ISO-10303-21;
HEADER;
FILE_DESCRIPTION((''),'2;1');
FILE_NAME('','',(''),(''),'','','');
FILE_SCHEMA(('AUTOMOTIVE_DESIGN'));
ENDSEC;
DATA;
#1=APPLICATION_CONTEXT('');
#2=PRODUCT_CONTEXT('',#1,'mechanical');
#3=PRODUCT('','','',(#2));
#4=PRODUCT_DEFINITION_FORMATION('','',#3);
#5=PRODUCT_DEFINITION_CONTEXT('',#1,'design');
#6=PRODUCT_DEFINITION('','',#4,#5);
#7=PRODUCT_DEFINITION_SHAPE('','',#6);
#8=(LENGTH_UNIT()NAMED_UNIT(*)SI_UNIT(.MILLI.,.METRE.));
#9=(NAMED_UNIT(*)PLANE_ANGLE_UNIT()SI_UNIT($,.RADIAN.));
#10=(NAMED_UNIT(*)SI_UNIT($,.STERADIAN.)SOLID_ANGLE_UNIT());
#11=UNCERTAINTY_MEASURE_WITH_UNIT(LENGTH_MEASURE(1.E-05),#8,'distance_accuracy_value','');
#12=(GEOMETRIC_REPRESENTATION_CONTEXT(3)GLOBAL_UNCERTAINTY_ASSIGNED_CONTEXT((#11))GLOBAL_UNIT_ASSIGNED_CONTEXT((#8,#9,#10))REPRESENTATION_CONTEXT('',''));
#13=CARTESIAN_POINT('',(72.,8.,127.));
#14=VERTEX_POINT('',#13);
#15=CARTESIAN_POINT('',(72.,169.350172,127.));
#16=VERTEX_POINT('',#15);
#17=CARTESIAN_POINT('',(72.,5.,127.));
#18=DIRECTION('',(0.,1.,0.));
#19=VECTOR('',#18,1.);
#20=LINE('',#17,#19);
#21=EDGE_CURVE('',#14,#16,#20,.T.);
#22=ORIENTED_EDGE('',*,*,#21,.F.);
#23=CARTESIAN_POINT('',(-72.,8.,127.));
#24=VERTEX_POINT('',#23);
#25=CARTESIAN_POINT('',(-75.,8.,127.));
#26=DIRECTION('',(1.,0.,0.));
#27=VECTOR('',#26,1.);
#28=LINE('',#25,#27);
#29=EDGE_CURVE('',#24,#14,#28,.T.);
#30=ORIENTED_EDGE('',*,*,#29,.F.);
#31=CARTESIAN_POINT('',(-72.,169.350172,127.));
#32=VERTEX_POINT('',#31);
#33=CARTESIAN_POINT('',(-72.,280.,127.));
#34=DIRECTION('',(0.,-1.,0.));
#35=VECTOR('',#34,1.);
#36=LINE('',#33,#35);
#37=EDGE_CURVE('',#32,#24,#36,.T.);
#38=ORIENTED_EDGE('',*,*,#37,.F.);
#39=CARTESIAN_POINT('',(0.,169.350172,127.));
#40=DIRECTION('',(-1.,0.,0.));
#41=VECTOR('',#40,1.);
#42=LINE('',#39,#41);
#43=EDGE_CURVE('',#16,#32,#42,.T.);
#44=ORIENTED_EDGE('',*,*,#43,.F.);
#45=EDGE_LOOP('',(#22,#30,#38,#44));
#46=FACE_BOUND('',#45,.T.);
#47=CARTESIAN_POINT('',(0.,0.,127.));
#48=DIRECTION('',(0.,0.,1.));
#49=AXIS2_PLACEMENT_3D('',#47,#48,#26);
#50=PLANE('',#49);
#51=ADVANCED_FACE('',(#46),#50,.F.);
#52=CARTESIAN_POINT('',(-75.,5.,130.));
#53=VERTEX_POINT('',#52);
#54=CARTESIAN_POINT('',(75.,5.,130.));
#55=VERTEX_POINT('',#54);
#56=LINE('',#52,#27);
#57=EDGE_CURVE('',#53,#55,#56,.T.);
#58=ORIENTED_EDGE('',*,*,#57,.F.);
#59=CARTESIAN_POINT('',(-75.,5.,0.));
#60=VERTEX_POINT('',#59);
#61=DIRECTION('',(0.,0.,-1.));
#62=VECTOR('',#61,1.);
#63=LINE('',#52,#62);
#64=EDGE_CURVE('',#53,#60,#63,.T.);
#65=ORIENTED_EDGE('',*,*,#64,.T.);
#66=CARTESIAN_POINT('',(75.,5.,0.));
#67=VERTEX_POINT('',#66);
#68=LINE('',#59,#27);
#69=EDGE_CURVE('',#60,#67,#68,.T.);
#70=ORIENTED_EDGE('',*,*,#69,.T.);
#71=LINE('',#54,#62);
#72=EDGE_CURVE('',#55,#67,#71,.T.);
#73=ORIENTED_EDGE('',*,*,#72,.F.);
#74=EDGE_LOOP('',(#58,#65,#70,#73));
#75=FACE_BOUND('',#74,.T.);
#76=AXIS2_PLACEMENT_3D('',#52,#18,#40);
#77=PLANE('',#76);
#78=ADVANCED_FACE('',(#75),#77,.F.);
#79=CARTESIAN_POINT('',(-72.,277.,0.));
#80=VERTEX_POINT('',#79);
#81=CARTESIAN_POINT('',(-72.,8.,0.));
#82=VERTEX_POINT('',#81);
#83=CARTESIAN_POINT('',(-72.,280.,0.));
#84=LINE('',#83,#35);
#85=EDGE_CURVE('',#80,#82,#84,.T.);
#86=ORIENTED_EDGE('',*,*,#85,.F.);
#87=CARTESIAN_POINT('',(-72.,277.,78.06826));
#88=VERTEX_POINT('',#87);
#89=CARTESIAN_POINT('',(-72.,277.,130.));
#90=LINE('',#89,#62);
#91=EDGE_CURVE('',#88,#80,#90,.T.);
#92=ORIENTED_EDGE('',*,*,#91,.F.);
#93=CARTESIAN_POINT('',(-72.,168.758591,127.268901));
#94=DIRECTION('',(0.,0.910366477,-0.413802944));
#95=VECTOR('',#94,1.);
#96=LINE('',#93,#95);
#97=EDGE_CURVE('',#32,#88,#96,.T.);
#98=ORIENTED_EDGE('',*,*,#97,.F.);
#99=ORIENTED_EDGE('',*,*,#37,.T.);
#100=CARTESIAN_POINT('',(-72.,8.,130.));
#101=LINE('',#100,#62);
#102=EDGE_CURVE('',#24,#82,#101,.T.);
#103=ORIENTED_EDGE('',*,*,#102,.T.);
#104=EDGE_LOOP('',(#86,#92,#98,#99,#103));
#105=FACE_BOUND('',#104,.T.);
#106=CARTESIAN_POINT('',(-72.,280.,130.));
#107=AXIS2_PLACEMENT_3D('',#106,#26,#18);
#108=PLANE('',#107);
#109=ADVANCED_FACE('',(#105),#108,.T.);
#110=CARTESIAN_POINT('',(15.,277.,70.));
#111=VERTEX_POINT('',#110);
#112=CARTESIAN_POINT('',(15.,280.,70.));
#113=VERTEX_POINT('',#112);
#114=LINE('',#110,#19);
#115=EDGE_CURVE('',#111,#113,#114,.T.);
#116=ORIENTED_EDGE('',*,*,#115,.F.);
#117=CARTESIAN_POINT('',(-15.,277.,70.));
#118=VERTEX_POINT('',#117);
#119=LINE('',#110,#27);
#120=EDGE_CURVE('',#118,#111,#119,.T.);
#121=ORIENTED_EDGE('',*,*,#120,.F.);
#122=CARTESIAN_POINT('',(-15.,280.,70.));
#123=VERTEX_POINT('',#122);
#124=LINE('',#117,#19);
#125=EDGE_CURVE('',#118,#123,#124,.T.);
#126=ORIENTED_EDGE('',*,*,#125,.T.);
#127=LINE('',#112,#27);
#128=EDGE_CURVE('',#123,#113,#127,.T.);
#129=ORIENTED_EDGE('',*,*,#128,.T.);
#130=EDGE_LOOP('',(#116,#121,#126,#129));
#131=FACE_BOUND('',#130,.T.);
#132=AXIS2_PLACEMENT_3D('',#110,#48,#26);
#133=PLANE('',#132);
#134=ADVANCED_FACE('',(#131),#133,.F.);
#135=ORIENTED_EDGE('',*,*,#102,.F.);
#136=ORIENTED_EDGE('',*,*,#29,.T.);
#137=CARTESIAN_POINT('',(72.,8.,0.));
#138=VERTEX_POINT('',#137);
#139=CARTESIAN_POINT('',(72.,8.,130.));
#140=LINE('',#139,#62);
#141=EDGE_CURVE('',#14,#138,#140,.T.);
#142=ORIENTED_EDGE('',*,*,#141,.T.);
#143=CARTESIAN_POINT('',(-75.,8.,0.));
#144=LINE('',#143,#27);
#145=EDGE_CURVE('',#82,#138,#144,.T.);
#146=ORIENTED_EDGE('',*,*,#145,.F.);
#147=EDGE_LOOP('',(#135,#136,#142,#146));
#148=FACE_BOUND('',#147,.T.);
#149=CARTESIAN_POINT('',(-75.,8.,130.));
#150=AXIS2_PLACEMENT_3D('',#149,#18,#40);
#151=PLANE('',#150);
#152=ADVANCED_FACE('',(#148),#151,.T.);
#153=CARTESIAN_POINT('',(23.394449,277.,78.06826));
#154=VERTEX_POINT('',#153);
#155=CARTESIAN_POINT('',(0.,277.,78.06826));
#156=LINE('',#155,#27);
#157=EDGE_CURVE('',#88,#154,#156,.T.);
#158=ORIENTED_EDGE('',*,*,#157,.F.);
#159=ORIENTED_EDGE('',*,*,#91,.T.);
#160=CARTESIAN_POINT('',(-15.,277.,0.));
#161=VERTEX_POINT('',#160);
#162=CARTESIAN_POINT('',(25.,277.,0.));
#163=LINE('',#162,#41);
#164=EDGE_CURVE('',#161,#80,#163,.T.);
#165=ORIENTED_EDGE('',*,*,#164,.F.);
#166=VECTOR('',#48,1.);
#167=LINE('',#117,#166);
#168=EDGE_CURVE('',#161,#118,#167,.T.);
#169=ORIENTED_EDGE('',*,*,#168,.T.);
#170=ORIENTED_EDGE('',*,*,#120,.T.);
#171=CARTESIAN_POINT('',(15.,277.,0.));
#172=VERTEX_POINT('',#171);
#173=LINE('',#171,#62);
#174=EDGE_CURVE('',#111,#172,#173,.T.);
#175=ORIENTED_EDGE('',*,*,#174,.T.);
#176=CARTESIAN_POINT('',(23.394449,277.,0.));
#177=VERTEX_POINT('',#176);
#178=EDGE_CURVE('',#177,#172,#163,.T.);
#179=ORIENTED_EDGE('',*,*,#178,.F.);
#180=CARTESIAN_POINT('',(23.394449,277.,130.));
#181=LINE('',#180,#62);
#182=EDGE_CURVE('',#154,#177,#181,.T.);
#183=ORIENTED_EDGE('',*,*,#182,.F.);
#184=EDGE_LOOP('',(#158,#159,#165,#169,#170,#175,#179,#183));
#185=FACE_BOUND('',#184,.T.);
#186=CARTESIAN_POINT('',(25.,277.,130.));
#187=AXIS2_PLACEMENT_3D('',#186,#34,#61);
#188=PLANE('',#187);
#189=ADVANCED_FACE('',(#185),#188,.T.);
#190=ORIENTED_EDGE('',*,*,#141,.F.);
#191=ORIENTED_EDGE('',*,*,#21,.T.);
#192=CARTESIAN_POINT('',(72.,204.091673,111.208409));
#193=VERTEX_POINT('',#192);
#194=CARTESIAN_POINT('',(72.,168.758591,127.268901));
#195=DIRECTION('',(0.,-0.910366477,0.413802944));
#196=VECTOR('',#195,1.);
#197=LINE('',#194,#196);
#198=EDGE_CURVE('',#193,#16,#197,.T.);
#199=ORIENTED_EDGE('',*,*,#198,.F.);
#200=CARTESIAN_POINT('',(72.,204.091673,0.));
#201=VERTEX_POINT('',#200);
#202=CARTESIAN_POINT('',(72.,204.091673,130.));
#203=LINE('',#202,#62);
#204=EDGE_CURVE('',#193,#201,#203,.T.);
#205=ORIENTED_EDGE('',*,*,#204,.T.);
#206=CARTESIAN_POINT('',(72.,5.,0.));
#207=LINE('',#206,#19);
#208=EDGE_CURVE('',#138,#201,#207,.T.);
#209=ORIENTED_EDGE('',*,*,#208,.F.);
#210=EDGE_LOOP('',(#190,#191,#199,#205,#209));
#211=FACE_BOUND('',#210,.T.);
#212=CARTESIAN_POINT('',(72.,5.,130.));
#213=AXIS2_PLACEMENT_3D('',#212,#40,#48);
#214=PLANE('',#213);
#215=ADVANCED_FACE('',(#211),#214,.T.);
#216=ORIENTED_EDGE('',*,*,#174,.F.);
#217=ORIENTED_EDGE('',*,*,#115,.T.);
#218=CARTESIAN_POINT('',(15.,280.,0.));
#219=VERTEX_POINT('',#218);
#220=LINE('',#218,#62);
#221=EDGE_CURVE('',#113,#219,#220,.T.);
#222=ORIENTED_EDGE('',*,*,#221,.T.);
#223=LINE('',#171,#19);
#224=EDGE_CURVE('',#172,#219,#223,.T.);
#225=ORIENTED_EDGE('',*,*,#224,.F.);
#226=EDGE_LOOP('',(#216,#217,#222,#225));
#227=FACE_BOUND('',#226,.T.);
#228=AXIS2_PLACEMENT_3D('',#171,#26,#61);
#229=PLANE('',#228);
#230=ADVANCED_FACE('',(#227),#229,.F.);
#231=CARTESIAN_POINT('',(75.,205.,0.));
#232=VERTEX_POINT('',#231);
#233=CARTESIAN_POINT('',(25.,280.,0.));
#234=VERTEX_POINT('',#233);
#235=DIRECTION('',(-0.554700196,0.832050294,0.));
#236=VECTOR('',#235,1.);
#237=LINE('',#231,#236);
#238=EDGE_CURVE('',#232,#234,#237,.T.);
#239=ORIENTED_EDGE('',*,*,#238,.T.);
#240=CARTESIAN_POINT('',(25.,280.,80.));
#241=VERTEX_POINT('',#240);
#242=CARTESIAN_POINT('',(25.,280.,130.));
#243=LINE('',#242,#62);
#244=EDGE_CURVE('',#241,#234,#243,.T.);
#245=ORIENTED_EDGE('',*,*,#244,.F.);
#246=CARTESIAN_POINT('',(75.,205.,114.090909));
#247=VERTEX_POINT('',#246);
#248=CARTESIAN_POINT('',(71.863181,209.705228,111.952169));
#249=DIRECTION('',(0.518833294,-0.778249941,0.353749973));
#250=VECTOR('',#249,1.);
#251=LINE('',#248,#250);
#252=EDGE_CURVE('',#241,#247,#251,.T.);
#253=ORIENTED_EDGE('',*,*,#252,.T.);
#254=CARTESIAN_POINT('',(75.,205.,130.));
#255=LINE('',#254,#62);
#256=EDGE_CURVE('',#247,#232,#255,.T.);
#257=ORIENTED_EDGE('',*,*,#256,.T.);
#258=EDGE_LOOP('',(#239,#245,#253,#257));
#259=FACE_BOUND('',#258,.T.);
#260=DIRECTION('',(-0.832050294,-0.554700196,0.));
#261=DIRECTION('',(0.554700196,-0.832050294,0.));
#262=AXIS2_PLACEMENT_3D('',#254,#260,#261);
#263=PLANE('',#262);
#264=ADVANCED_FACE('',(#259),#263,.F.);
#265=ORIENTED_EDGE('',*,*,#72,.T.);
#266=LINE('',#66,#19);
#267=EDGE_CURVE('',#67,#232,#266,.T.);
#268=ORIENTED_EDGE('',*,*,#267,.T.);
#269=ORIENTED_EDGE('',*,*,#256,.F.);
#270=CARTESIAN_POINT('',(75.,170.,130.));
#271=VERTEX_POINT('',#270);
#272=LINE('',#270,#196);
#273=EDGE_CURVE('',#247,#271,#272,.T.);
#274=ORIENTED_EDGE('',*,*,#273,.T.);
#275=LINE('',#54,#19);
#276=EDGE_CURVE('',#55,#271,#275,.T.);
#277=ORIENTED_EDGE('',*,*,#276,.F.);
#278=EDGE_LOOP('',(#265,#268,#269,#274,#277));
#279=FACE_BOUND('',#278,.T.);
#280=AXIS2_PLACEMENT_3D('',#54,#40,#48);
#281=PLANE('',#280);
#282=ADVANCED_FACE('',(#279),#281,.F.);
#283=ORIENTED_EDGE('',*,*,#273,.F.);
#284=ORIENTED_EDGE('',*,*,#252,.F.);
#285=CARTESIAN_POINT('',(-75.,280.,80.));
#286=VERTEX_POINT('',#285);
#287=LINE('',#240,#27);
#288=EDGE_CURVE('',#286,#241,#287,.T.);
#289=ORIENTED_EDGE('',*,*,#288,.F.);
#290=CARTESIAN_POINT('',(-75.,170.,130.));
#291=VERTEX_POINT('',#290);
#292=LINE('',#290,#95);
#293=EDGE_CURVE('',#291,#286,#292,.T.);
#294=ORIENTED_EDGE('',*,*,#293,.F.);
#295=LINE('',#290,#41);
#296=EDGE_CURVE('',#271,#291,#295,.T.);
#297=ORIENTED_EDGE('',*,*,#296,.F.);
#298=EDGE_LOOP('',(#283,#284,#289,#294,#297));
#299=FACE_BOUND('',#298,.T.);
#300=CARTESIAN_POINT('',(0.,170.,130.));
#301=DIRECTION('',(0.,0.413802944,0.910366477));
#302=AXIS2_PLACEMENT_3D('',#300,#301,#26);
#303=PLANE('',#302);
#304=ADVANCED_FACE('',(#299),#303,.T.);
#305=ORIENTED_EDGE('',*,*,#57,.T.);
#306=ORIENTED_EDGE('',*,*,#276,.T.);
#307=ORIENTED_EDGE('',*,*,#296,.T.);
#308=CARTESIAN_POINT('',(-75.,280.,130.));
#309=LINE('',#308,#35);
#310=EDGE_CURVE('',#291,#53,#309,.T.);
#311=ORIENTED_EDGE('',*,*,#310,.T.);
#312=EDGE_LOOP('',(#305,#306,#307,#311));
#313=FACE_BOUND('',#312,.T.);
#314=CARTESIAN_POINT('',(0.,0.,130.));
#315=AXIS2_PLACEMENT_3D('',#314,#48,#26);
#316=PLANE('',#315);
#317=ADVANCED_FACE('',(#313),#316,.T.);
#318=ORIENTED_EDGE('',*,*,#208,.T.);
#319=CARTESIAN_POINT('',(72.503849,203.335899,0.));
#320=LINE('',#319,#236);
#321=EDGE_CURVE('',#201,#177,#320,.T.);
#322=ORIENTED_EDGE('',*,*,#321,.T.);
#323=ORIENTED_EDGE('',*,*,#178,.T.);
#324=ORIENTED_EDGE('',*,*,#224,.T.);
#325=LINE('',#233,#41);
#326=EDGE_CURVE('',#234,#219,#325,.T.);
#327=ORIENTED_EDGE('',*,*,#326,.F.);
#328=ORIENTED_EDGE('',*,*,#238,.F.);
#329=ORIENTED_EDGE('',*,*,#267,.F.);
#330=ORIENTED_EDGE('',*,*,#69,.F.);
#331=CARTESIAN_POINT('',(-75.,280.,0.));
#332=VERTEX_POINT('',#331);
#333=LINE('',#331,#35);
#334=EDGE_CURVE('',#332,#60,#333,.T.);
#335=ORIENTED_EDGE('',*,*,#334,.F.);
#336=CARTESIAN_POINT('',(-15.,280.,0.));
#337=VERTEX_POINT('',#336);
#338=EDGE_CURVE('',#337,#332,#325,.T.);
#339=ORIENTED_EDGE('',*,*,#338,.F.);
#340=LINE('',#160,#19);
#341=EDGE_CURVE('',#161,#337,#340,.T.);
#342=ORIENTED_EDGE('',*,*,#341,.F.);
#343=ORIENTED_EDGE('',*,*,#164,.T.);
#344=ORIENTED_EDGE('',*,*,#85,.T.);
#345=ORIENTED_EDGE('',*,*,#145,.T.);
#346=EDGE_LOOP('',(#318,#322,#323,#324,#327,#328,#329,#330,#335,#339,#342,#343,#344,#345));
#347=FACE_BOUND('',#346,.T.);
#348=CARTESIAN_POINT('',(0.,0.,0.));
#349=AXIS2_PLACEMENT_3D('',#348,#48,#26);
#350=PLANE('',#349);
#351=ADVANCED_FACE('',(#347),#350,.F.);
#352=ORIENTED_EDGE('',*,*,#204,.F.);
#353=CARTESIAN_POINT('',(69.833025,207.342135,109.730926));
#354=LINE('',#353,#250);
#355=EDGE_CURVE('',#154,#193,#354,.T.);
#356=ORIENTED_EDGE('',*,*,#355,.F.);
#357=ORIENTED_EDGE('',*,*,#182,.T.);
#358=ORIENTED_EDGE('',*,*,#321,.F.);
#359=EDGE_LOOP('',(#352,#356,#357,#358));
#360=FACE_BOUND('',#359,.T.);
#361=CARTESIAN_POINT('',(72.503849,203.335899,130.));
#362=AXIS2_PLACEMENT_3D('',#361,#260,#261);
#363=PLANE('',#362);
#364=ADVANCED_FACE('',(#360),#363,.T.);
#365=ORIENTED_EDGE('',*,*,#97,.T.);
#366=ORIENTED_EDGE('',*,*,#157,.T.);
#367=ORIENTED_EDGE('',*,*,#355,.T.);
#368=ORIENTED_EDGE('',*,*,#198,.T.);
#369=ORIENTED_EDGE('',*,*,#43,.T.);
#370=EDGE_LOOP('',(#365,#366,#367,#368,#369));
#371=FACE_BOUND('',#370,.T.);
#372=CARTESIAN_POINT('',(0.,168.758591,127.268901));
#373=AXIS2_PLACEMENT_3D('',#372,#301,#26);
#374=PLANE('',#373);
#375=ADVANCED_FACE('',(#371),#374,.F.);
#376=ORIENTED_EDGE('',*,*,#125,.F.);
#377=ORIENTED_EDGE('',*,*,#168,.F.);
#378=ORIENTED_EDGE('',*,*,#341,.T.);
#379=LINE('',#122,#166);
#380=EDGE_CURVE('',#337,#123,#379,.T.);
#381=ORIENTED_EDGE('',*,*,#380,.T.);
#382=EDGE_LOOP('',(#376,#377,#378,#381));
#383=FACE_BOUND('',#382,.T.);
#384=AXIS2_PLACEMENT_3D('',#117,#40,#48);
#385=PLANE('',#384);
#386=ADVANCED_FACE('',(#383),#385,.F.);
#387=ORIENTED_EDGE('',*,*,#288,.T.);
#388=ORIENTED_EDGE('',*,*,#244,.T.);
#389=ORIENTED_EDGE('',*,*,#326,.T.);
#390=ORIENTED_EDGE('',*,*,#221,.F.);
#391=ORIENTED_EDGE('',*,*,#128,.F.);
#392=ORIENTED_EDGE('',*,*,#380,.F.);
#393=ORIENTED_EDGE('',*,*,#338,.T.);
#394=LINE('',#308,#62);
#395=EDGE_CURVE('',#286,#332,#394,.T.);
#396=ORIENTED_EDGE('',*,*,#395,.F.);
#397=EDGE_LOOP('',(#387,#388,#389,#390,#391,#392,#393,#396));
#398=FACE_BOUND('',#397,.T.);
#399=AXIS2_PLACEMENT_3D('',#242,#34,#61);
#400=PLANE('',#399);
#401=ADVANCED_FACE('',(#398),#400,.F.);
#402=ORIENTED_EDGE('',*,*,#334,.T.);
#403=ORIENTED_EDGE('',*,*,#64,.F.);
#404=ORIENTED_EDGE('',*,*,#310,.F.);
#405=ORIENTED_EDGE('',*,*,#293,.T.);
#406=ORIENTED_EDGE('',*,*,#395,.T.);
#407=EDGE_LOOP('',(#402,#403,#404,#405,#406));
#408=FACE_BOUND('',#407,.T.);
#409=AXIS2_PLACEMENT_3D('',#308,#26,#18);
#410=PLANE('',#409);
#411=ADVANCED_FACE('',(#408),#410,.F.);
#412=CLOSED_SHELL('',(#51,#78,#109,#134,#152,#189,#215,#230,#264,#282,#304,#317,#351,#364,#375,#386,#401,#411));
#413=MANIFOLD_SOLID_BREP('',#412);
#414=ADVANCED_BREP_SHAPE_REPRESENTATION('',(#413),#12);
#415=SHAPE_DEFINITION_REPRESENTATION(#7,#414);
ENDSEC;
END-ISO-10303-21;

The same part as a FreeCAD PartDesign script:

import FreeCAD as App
import Part
import Sketcher

V = App.Vector


def edges_at(feature, points):
    """Names of the edges that pass closest to the given points."""
    edges = feature.Shape.Edges
    near = lambda p: min(range(len(edges)), key=lambda i: edges[i].distToShape(Part.Vertex(*p))[0])
    return sorted({f"Edge{near(p) + 1}" for p in points})


def faces_at(feature, points):
    """Names of the faces that lie closest to the given points."""
    faces = feature.Shape.Faces
    near = lambda p: min(range(len(faces)), key=lambda i: faces[i].distToShape(Part.Vertex(*p))[0])
    return sorted({f"Face{near(p) + 1}" for p in points})

doc = App.newDocument("Part")
params = doc.addObject("Spreadsheet::Sheet", "Params")
for row, (alias, value) in enumerate([
    ("sketch1_width", "150 mm"),
    ("sketch1_width2", "100 mm"),
    ("sketch1_height", "275 mm"),
    ("sketch1_height2", "200 mm"),
    ("pad1_length", "130 mm"),
    ("chamfer_size", "50 mm"),
    ("chamfer_size2", "110 mm"),
    ("thickness_wall", "3 mm"),
    ("sketch2_width", "30 mm"),
    ("sketch2_height", "70 mm"),
    ("pocket1_length", "3 mm"),
], start=1):
    params.set(f"A{row}", alias)
    params.set(f"B{row}", "=" + value)
    params.setAlias(f"B{row}", alias)

body = doc.addObject("PartDesign::Body", "Body")

sketch1 = body.newObject("Sketcher::SketchObject", "Sketch")
sketch1.AttachmentSupport = (doc.getObject("XY_Plane"), [""])
sketch1.MapMode = "FlatFace"
sketch1.addGeometry([
    Part.LineSegment(V(-75, 280, 0), V(-75, 5, 0)),
    Part.LineSegment(V(-75, 5, 0), V(75, 5, 0)),
    Part.LineSegment(V(75, 5, 0), V(75, 205, 0)),
    Part.LineSegment(V(75, 205, 0), V(25, 280, 0)),
    Part.LineSegment(V(25, 280, 0), V(-75, 280, 0)),
], False)
sketch1.addConstraint([
    Sketcher.Constraint("Coincident", 0, 2, 1, 1),
    Sketcher.Constraint("Coincident", 1, 2, 2, 1),
    Sketcher.Constraint("Coincident", 2, 2, 3, 1),
    Sketcher.Constraint("Coincident", 3, 2, 4, 1),
    Sketcher.Constraint("Coincident", 4, 2, 0, 1),
    Sketcher.Constraint("Vertical", 0),
    Sketcher.Constraint("Horizontal", 1),
    Sketcher.Constraint("Vertical", 2),
    Sketcher.Constraint("Horizontal", 4),
    Sketcher.Constraint("DistanceX", 1, 1, 1, 2, 150.0),
    Sketcher.Constraint("DistanceX", 4, 2, 4, 1, 100.0),
    Sketcher.Constraint("DistanceY", 0, 2, 0, 1, 275.0),
    Sketcher.Constraint("DistanceY", 2, 1, 2, 2, 200.0),
    Sketcher.Constraint("DistanceX", 0, 2, -1, 1, 75.0),
    Sketcher.Constraint("DistanceY", -1, 1, 0, 2, 5.0),
])
sketch1.setExpression("Constraints[9]", "Params.sketch1_width")
sketch1.setExpression("Constraints[10]", "Params.sketch1_width2")
sketch1.setExpression("Constraints[11]", "Params.sketch1_height")
sketch1.setExpression("Constraints[12]", "Params.sketch1_height2")
pad1 = body.newObject("PartDesign::Pad", "Pad")
pad1.Profile = sketch1
pad1.setExpression("Length", "Params.pad1_length")
doc.recompute()

chamfer = body.newObject("PartDesign::Chamfer", "Chamfer")
chamfer.Base = (pad1, edges_at(pad1, [(-25, 280, 130)]))
chamfer.ChamferType = "Two distances"
chamfer.setExpression("Size", "Params.chamfer_size")
chamfer.setExpression("Size2", "Params.chamfer_size2")
doc.recompute()

thickness = body.newObject("PartDesign::Thickness", "Thickness")
thickness.Base = (chamfer, faces_at(chamfer, [(0, 142.5, 0)]))
thickness.setExpression("Value", "Params.thickness_wall")
thickness.Reversed = True
thickness.Join = "Intersection"

sketch2 = body.newObject("Sketcher::SketchObject", "Sketch001")
sketch2.AttachmentSupport = (doc.getObject("XZ_Plane"), [""])
sketch2.MapMode = "FlatFace"
sketch2.AttachmentOffset = App.Placement(V(0, 0, -280), App.Rotation())
sketch2.addGeometry([
    Part.LineSegment(V(-15, 0, 0), V(-15, 70, 0)),
    Part.LineSegment(V(-15, 70, 0), V(15, 70, 0)),
    Part.LineSegment(V(15, 70, 0), V(15, 0, 0)),
    Part.LineSegment(V(15, 0, 0), V(-15, 0, 0)),
], False)
sketch2.addConstraint([
    Sketcher.Constraint("Coincident", 0, 2, 1, 1),
    Sketcher.Constraint("Coincident", 1, 2, 2, 1),
    Sketcher.Constraint("Coincident", 2, 2, 3, 1),
    Sketcher.Constraint("Coincident", 3, 2, 0, 1),
    Sketcher.Constraint("Vertical", 0),
    Sketcher.Constraint("Horizontal", 1),
    Sketcher.Constraint("Vertical", 2),
    Sketcher.Constraint("Horizontal", 3),
    Sketcher.Constraint("Symmetric", 2, 2, 3, 2, -1, 1),
    Sketcher.Constraint("DistanceX", 1, 1, 1, 2, 30.0),
    Sketcher.Constraint("DistanceY", 0, 1, 0, 2, 70.0),
])
sketch2.setExpression("Constraints[9]", "Params.sketch2_width")
sketch2.setExpression("Constraints[10]", "Params.sketch2_height")
pocket1 = body.newObject("PartDesign::Pocket", "Pocket")
pocket1.Profile = sketch2
pocket1.setExpression("Length", "Params.pocket1_length")
pocket1.Reversed = True

doc.recompute()
